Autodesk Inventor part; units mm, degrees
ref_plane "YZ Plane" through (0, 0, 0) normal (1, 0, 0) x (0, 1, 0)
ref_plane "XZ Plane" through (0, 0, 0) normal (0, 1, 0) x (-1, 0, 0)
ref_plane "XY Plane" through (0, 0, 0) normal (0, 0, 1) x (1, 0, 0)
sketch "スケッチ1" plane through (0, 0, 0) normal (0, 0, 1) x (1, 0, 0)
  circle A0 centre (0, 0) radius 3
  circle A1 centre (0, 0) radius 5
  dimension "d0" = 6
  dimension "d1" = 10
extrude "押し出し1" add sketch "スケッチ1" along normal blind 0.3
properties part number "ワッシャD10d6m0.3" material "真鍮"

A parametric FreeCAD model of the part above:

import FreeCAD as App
import Part
import Sketcher

doc = App.newDocument("Part")
body = doc.addObject("PartDesign::Body", "Body")

# Sketch on XY plane
sketch1 = body.newObject("Sketcher::SketchObject", "Sketch")
sketch1.AttachmentSupport = (doc.getObject("XY_Plane"), [""])
sketch1.MapMode = "FlatFace"
sketch1.addGeometry([
    Part.Circle(App.Vector(0, 0, 0), App.Vector(0, 0, 1), 5),
    Part.Circle(App.Vector(0, 0, 0), App.Vector(0, 0, 1), 3),
], False)
sketch1.addConstraint([
    Sketcher.Constraint("Coincident", 0, 3, -1, 1),
    Sketcher.Constraint("Coincident", 1, 3, -1, 1),
    Sketcher.Constraint("Diameter", 0, 10.0),
    Sketcher.Constraint("Diameter", 1, 6.0),
])
pad1 = body.newObject("PartDesign::Pad", "Pad")
pad1.Profile = sketch1
pad1.Length = 0.3

doc.recompute()
